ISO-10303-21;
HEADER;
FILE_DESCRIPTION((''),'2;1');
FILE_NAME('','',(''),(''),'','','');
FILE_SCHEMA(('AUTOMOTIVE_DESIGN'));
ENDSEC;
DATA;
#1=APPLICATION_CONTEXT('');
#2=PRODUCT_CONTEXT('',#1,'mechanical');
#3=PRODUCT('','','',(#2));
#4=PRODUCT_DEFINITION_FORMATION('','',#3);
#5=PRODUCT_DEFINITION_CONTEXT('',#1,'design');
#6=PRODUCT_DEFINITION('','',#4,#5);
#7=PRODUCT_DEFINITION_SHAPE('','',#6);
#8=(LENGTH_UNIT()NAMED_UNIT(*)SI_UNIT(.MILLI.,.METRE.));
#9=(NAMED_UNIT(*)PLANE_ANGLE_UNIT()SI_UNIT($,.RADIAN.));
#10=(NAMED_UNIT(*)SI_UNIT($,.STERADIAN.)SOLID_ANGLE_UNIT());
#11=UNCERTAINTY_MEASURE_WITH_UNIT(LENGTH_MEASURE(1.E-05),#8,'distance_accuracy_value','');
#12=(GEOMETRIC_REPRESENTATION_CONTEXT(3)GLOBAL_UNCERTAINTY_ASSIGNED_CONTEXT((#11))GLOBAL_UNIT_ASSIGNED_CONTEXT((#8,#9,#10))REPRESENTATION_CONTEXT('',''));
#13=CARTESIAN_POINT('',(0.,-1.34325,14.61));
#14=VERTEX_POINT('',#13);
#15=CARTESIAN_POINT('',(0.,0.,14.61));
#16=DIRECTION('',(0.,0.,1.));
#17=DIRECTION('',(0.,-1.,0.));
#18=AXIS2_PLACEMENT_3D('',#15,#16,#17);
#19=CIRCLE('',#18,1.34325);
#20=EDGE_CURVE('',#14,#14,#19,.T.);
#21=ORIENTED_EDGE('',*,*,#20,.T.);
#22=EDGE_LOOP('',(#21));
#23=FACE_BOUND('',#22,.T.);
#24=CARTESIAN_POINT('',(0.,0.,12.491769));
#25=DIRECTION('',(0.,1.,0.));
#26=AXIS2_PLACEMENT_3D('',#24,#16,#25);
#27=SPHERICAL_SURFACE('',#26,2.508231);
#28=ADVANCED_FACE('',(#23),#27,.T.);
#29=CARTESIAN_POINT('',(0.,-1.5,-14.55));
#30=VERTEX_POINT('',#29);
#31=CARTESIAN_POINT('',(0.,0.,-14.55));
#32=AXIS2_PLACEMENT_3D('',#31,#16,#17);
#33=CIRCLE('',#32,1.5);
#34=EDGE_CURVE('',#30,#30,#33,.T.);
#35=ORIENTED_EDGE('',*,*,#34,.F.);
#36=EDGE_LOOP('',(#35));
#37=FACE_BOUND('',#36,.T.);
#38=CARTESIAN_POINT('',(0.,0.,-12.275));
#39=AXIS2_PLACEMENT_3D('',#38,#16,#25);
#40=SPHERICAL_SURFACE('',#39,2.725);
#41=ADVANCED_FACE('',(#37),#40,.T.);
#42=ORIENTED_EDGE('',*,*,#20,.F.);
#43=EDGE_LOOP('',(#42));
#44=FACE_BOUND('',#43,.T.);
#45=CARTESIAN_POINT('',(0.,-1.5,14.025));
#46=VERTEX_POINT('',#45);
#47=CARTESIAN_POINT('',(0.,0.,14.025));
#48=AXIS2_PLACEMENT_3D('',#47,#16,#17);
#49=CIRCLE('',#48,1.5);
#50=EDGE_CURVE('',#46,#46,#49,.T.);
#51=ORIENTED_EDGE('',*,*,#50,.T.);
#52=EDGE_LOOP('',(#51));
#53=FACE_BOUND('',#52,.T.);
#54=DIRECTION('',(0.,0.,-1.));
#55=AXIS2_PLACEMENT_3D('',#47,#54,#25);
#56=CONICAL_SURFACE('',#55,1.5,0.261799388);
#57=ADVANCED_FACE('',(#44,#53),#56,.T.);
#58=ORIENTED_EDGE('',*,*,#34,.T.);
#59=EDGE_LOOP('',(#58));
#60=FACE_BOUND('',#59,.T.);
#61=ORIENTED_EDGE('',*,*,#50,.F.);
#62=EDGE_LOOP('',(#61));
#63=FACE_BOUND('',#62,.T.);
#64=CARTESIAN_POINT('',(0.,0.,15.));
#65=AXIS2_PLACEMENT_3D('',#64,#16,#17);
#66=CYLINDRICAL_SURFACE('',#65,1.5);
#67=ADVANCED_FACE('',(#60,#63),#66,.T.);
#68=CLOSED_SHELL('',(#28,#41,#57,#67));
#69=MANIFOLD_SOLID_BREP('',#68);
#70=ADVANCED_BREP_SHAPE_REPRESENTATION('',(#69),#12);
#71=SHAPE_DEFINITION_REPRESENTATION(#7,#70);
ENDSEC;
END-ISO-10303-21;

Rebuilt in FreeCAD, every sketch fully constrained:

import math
import FreeCAD as App
import Part
import Sketcher
from FreeCAD import Vector
Q = App.Units.Quantity

doc = App.newDocument("Part")
body = doc.addObject("PartDesign::Body", "Body")

sketch1 = body.newObject("Sketcher::SketchObject", "Sketch")
sketch1.AttachmentSupport = (doc.getObject("YZ_Plane"), [""])
sketch1.MapMode = "FlatFace"
sketch1.addGeometry([
    Part.LineSegment(Vector(0, 15, 0), Vector(0, -15, 0)),
    Part.ArcOfCircle(Part.Circle(Vector(0, -12.3, 0), Vector(0, 0, 1), 2.7), math.radians(-90), math.radians(-57)),
    Part.LineSegment(Vector(1.5, -14.6, 0), Vector(1.5, 14, 0)),
    Part.LineSegment(Vector(1.5, 14, 0), Vector(1.3, 14.6, 0)),
    Part.ArcOfCircle(Part.Circle(Vector(0, 12.5, 0), Vector(0, 0, 1), 2.5), math.radians(58), math.radians(90)),
], False)
sketch1.addConstraint([
    Sketcher.Constraint("Coincident", 0, 2, 1, 1),
    Sketcher.Constraint("Coincident", 1, 2, 2, 1),
    Sketcher.Constraint("Coincident", 2, 2, 3, 1),
    Sketcher.Constraint("Coincident", 3, 2, 4, 1),
    Sketcher.Constraint("Coincident", 4, 2, 0, 1),
    Sketcher.Constraint("Vertical", 0),
    Sketcher.Constraint("Vertical", 2),
    Sketcher.Constraint("Symmetric", 0, 2, 4, 2, -1, 1),
    Sketcher.Constraint("PointOnObject", 1, 3, -2),
    Sketcher.Constraint("PointOnObject", 4, 3, -2),
    Sketcher.Constraint("DistanceY", 0, 2, 0, 1, 30.0),
    Sketcher.Constraint("Angle", 3, Q("105 deg")),
    Sketcher.Constraint("Radius", 1, 2.725),
    Sketcher.Constraint("DistanceX", -1, 1, 1, 2, 1.5),
    Sketcher.Constraint("DistanceY", 1, 3, 2, 2, 26.3),
    Sketcher.Constraint("DistanceY", -1, 1, 3, 2, 14.61),
])
revolution = body.newObject("PartDesign::Revolution", "Revolution")
revolution.Profile = sketch1
revolution.ReferenceAxis = (sketch1, ["V_Axis"])
revolution.Angle = 360

doc.recompute()
